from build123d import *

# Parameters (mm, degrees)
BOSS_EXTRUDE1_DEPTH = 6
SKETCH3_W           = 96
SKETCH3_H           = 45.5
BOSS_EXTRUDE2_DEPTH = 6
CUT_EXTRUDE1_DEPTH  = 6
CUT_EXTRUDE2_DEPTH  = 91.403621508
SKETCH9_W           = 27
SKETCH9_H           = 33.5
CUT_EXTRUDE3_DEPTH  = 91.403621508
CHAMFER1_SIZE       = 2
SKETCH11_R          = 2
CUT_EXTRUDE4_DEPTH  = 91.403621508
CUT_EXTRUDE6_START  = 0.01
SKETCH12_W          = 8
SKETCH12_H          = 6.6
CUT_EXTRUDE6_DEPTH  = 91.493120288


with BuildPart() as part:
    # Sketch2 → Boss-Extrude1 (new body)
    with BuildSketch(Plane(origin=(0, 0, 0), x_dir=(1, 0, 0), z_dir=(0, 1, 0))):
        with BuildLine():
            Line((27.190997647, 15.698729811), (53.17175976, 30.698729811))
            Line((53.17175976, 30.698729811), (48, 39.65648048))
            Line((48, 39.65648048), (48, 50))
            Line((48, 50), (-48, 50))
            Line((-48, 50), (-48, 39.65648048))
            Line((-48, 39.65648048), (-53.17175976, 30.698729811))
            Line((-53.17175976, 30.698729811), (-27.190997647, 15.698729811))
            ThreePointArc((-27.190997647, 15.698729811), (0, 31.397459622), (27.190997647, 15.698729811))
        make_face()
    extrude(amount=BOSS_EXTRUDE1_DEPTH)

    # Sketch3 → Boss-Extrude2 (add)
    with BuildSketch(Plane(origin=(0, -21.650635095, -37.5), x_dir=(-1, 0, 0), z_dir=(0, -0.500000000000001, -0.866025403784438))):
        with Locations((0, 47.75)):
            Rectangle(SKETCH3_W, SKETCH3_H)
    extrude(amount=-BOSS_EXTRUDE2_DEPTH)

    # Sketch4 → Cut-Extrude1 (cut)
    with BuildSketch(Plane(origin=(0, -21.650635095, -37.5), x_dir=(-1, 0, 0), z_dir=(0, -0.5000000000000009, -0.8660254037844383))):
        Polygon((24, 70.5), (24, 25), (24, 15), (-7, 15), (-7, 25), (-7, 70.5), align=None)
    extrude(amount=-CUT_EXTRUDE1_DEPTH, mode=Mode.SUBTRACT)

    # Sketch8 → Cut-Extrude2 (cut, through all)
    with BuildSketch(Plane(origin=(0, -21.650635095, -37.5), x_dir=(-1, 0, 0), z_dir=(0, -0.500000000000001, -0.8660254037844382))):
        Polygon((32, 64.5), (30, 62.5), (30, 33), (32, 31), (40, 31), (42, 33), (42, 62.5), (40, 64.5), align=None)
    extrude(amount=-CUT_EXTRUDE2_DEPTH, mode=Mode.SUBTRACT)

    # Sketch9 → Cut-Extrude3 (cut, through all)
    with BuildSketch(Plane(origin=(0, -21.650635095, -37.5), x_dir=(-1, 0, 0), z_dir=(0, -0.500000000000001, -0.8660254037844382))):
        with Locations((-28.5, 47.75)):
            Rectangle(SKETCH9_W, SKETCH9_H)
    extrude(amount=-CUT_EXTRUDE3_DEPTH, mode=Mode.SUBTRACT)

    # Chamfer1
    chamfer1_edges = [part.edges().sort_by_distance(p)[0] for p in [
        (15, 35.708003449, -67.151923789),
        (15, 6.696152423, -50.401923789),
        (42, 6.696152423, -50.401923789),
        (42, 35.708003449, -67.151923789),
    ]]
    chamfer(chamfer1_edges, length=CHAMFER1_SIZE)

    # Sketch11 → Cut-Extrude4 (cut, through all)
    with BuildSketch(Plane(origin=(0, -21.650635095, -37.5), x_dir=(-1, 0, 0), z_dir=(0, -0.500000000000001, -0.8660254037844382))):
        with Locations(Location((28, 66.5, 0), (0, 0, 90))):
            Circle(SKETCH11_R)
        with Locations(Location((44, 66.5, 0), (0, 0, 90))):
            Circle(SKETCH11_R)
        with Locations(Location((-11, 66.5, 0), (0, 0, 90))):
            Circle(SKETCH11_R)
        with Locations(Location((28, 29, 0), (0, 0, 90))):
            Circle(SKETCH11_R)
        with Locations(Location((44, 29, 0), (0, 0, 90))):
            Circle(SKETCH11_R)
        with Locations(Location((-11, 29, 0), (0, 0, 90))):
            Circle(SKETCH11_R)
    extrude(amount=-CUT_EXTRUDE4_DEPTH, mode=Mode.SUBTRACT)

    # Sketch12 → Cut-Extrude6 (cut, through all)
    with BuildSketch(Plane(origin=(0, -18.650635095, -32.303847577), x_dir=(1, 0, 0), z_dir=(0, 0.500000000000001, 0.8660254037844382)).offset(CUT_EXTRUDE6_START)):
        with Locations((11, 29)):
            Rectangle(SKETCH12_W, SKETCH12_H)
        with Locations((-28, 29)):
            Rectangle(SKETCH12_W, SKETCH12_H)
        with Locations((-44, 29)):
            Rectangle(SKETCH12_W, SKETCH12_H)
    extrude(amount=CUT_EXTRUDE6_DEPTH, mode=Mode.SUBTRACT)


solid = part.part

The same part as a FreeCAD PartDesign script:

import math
import FreeCAD as App
import Part
import Sketcher
from FreeCAD import Vector
Q = App.Units.Quantity


def edges_at(feature, points):
    """Names of the edges that pass closest to the given points."""
    edges = feature.Shape.Edges
    near = lambda p: min(range(len(edges)), key=lambda i: edges[i].distToShape(Part.Vertex(*p))[0])
    return sorted({f"Edge{near(p) + 1}" for p in points})

doc = App.newDocument("Part")
body = doc.addObject("PartDesign::Body", "Body")

# Sketch on XZ plane
sketch1 = doc.addObject("Sketcher::SketchObject", "Sketch")
body.addObject(sketch1)
sketch1.AttachmentSupport = (doc.XZ_Plane, [""])
sketch1.MapMode = "FlatFace"
sketch1.addGeometry(Part.LineSegment(Vector(27, -16, 0), Vector(53, -31, 0)), False)
sketch1.addGeometry(Part.LineSegment(Vector(53, -31, 0), Vector(48, -40, 0)), False)
sketch1.addGeometry(Part.LineSegment(Vector(48, -40, 0), Vector(48, -50, 0)), False)
sketch1.addGeometry(Part.LineSegment(Vector(48, -50, 0), Vector(-48, -50, 0)), False)
sketch1.addGeometry(Part.LineSegment(Vector(-48, -50, 0), Vector(-48, -40, 0)), False)
sketch1.addGeometry(Part.LineSegment(Vector(-48, -40, 0), Vector(-53, -31, 0)), False)
sketch1.addGeometry(Part.LineSegment(Vector(-53, -31, 0), Vector(-27, -16, 0)), False)
sketch1.addGeometry(Part.ArcOfCircle(Part.Circle(Vector(0, 0, 0), Vector(0, 0, 1), 31), math.radians(-150), math.radians(-30)), False)
sketch1.addConstraint(Sketcher.Constraint("Coincident", 0, 2, 1, 1))
sketch1.addConstraint(Sketcher.Constraint("Coincident", 1, 2, 2, 1))
sketch1.addConstraint(Sketcher.Constraint("Coincident", 2, 2, 3, 1))
sketch1.addConstraint(Sketcher.Constraint("Coincident", 3, 2, 4, 1))
sketch1.addConstraint(Sketcher.Constraint("Coincident", 4, 2, 5, 1))
sketch1.addConstraint(Sketcher.Constraint("Coincident", 5, 2, 6, 1))
sketch1.addConstraint(Sketcher.Constraint("Coincident", 6, 2, 7, 1))
sketch1.addConstraint(Sketcher.Constraint("Coincident", 7, 2, 0, 1))
sketch1.addConstraint(Sketcher.Constraint("Vertical", 2))
sketch1.addConstraint(Sketcher.Constraint("Horizontal", 3))
sketch1.addConstraint(Sketcher.Constraint("Vertical", 4))
sketch1.addConstraint(Sketcher.Constraint("Coincident", 7, 3, -1, 1))
sketch1.addConstraint(Sketcher.Constraint("Symmetric", 1, 2, 4, 2, -2))
sketch1.addConstraint(Sketcher.Constraint("Symmetric", 0, 2, 5, 2, -2))
sketch1.addConstraint(Sketcher.Constraint("Perpendicular", 0, 1))
sketch1.addConstraint(Sketcher.Constraint("Perpendicular", 5, 6))
sketch1.addConstraint(Sketcher.Constraint("DistanceX", 3, 2, 3, 1, 96.0))
sketch1.addConstraint(Sketcher.Constraint("Angle", 0, Q("-30 deg")))
sketch1.addConstraint(Sketcher.Constraint("Distance", 0, 30.0))
sketch1.addConstraint(Sketcher.Constraint("DistanceY", 2, 2, -1, 1, 50.0))
sketch1.addConstraint(Sketcher.Constraint("Radius", 7, 31.39746))
sketch1.addConstraint(Sketcher.Constraint("Distance", 1, 10.34352))
pad1 = doc.addObject("PartDesign::Pad", "Pad")
body.addObject(pad1)
pad1.Profile = sketch1
pad1.Length = 6
pad1.Reversed = True

# Sketch on an angled plane
sketch2 = doc.addObject("Sketcher::SketchObject", "Sketch001")
body.addObject(sketch2)
sketch2.Placement = App.Placement(Vector(0, -21.650635, -37.5), App.Rotation(Vector(-1, 0, 0), Vector(0, 0.866025404, -0.5), Vector(0, -0.5, -0.866025404), "ZXY"))
sketch2.addGeometry(Part.LineSegment(Vector(-48, 71, 0), Vector(-48, 25, 0)), False)
sketch2.addGeometry(Part.LineSegment(Vector(-48, 25, 0), Vector(48, 25, 0)), False)
sketch2.addGeometry(Part.LineSegment(Vector(48, 25, 0), Vector(48, 71, 0)), False)
sketch2.addGeometry(Part.LineSegment(Vector(48, 71, 0), Vector(-48, 71, 0)), False)
sketch2.addConstraint(Sketcher.Constraint("Coincident", 0, 2, 1, 1))
sketch2.addConstraint(Sketcher.Constraint("Coincident", 1, 2, 2, 1))
sketch2.addConstraint(Sketcher.Constraint("Coincident", 2, 2, 3, 1))
sketch2.addConstraint(Sketcher.Constraint("Coincident", 3, 2, 0, 1))
sketch2.addConstraint(Sketcher.Constraint("Vertical", 0))
sketch2.addConstraint(Sketcher.Constraint("Horizontal", 1))
sketch2.addConstraint(Sketcher.Constraint("Vertical", 2))
sketch2.addConstraint(Sketcher.Constraint("Horizontal", 3))
sketch2.addConstraint(Sketcher.Constraint("DistanceX", 1, 1, 1, 2, 96.0))
sketch2.addConstraint(Sketcher.Constraint("DistanceY", 0, 2, 0, 1, 45.5))
sketch2.addConstraint(Sketcher.Constraint("DistanceX", 0, 2, -1, 1, 48.0))
sketch2.addConstraint(Sketcher.Constraint("DistanceY", -1, 1, 0, 2, 25.0))
pad2 = doc.addObject("PartDesign::Pad", "Pad001")
body.addObject(pad2)
pad2.Profile = sketch2
pad2.Length = 6
pad2.Reversed = True

# Sketch on an angled plane
sketch3 = doc.addObject("Sketcher::SketchObject", "Sketch002")
body.addObject(sketch3)
sketch3.Placement = App.Placement(Vector(0, -21.650635, -37.5), App.Rotation(Vector(-1, 0, 0), Vector(0, 0.866025404, -0.5), Vector(0, -0.5, -0.866025404), "ZXY"))
sketch3.addGeometry(Part.LineSegment(Vector(24, 15, 0), Vector(24, 71, 0)), False)
sketch3.addGeometry(Part.LineSegment(Vector(24, 71, 0), Vector(-7, 71, 0)), False)
sketch3.addGeometry(Part.LineSegment(Vector(-7, 71, 0), Vector(-7, 15, 0)), False)
sketch3.addGeometry(Part.LineSegment(Vector(-7, 15, 0), Vector(24, 15, 0)), False)
sketch3.addConstraint(Sketcher.Constraint("Coincident", 0, 2, 1, 1))
sketch3.addConstraint(Sketcher.Constraint("Coincident", 1, 2, 2, 1))
sketch3.addConstraint(Sketcher.Constraint("Coincident", 2, 2, 3, 1))
sketch3.addConstraint(Sketcher.Constraint("Coincident", 3, 2, 0, 1))
sketch3.addConstraint(Sketcher.Constraint("Vertical", 0))
sketch3.addConstraint(Sketcher.Constraint("Horizontal", 1))
sketch3.addConstraint(Sketcher.Constraint("Vertical", 2))
sketch3.addConstraint(Sketcher.Constraint("Horizontal", 3))
sketch3.addConstraint(Sketcher.Constraint("DistanceX", 1, 2, 1, 1, 31.0))
sketch3.addConstraint(Sketcher.Constraint("DistanceY", 0, 1, 0, 2, 55.5))
sketch3.addConstraint(Sketcher.Constraint("DistanceX", -1, 1, 0, 2, 24.0))
sketch3.addConstraint(Sketcher.Constraint("DistanceY", -1, 1, 2, 2, 15.0))
pocket1 = doc.addObject("PartDesign::Pocket", "Pocket")
body.addObject(pocket1)
pocket1.Profile = sketch3
pocket1.Length = 6

# Sketch on an angled plane
sketch4 = doc.addObject("Sketcher::SketchObject", "Sketch003")
body.addObject(sketch4)
sketch4.Placement = App.Placement(Vector(0, -21.650635, -37.5), App.Rotation(Vector(-1, 0, 0), Vector(0, 0.866025404, -0.5), Vector(0, -0.5, -0.866025404), "ZXY"))
sketch4.addGeometry(Part.LineSegment(Vector(32, 64.5, 0), Vector(30, 62.5, 0)), False)
sketch4.addGeometry(Part.LineSegment(Vector(30, 62.5, 0), Vector(30, 33, 0)), False)
sketch4.addGeometry(Part.LineSegment(Vector(30, 33, 0), Vector(32, 31, 0)), False)
sketch4.addGeometry(Part.LineSegment(Vector(32, 31, 0), Vector(40, 31, 0)), False)
sketch4.addGeometry(Part.LineSegment(Vector(40, 31, 0), Vector(42, 33, 0)), False)
sketch4.addGeometry(Part.LineSegment(Vector(42, 33, 0), Vector(42, 62.5, 0)), False)
sketch4.addGeometry(Part.LineSegment(Vector(42, 62.5, 0), Vector(40, 64.5, 0)), False)
sketch4.addGeometry(Part.LineSegment(Vector(40, 64.5, 0), Vector(32, 64.5, 0)), False)
sketch4.addConstraint(Sketcher.Constraint("Coincident", 0, 2, 1, 1))
sketch4.addConstraint(Sketcher.Constraint("Coincident", 1, 2, 2, 1))
sketch4.addConstraint(Sketcher.Constraint("Coincident", 2, 2, 3, 1))
sketch4.addConstraint(Sketcher.Constraint("Coincident", 3, 2, 4, 1))
sketch4.addConstraint(Sketcher.Constraint("Coincident", 4, 2, 5, 1))
sketch4.addConstraint(Sketcher.Constraint("Coincident", 5, 2, 6, 1))
sketch4.addConstraint(Sketcher.Constraint("Coincident", 6, 2, 7, 1))
sketch4.addConstraint(Sketcher.Constraint("Coincident", 7, 2, 0, 1))
sketch4.addConstraint(Sketcher.Constraint("Vertical", 1))
sketch4.addConstraint(Sketcher.Constraint("Horizontal", 3))
sketch4.addConstraint(Sketcher.Constraint("Vertical", 5))
sketch4.addConstraint(Sketcher.Constraint("Horizontal", 7))
sketch4.addConstraint(Sketcher.Constraint("Perpendicular", 0, 2))
sketch4.addConstraint(Sketcher.Constraint("Perpendicular", 2, 4))
sketch4.addConstraint(Sketcher.Constraint("Perpendicular", 4, 6))
sketch4.addConstraint(Sketcher.Constraint("Horizontal", 1, 2, 4, 2))
sketch4.addConstraint(Sketcher.Constraint("Horizontal", 0, 2, 5, 2))
sketch4.addConstraint(Sketcher.Constraint("Vertical", 3, 2, 6, 2))
sketch4.addConstraint(Sketcher.Constraint("Vertical", 2, 2, 7, 2))
sketch4.addConstraint(Sketcher.Constraint("DistanceX", 3, 1, 3, 2, 8.0))
sketch4.addConstraint(Sketcher.Constraint("DistanceY", 1, 2, 1, 1, 29.5))
sketch4.addConstraint(Sketcher.Constraint("DistanceX", -1, 1, 0, 2, 30.0))
sketch4.addConstraint(Sketcher.Constraint("DistanceY", -1, 1, 1, 2, 33.0))
sketch4.addConstraint(Sketcher.Constraint("DistanceX", -1, 1, 2, 2, 32.0))
pocket2 = doc.addObject("PartDesign::Pocket", "Pocket001")
body.addObject(pocket2)
pocket2.Profile = sketch4
pocket2.Type = "ThroughAll"

# Sketch on an angled plane
sketch5 = doc.addObject("Sketcher::SketchObject", "Sketch004")
body.addObject(sketch5)
sketch5.Placement = App.Placement(Vector(0, -21.650635, -37.5), App.Rotation(Vector(-1, 0, 0), Vector(0, 0.866025404, -0.5), Vector(0, -0.5, -0.866025404), "ZXY"))
sketch5.addGeometry(Part.LineSegment(Vector(-42, 65, 0), Vector(-42, 31, 0)), False)
sketch5.addGeometry(Part.LineSegment(Vector(-42, 31, 0), Vector(-15, 31, 0)), False)
sketch5.addGeometry(Part.LineSegment(Vector(-15, 31, 0), Vector(-15, 65, 0)), False)
sketch5.addGeometry(Part.LineSegment(Vector(-15, 65, 0), Vector(-42, 65, 0)), False)
sketch5.addConstraint(Sketcher.Constraint("Coincident", 0, 2, 1, 1))
sketch5.addConstraint(Sketcher.Constraint("Coincident", 1, 2, 2, 1))
sketch5.addConstraint(Sketcher.Constraint("Coincident", 2, 2, 3, 1))
sketch5.addConstraint(Sketcher.Constraint("Coincident", 3, 2, 0, 1))
sketch5.addConstraint(Sketcher.Constraint("Vertical", 0))
sketch5.addConstraint(Sketcher.Constraint("Horizontal", 1))
sketch5.addConstraint(Sketcher.Constraint("Vertical", 2))
sketch5.addConstraint(Sketcher.Constraint("Horizontal", 3))
sketch5.addConstraint(Sketcher.Constraint("DistanceX", 1, 1, 1, 2, 27.0))
sketch5.addConstraint(Sketcher.Constraint("DistanceY", 0, 2, 0, 1, 33.5))
sketch5.addConstraint(Sketcher.Constraint("DistanceX", 0, 2, -1, 1, 42.0))
sketch5.addConstraint(Sketcher.Constraint("DistanceY", -1, 1, 0, 2, 31.0))
pocket3 = doc.addObject("PartDesign::Pocket", "Pocket002")
body.addObject(pocket3)
pocket3.Profile = sketch5
pocket3.Type = "ThroughAll"
doc.recompute()

chamfer = doc.addObject("PartDesign::Chamfer", "Chamfer")
body.addObject(chamfer)
chamfer.Base = (pocket3, edges_at(pocket3, [
    (15, 35.708, -67.152),
    (15, 6.696, -50.402),
    (42, 6.696, -50.402),
    (42, 35.708, -67.152),
]))
chamfer.Size = 2

# Sketch on an angled plane
sketch6 = doc.addObject("Sketcher::SketchObject", "Sketch005")
body.addObject(sketch6)
sketch6.Placement = App.Placement(Vector(0, -21.650635, -37.5), App.Rotation(Vector(-1, 0, 0), Vector(0, 0.866025404, -0.5), Vector(0, -0.5, -0.866025404), "ZXY"))
sketch6.addGeometry(Part.Circle(Vector(28, 66.5, 0), Vector(0, 0, 1), 2), False)
sketch6.addGeometry(Part.Circle(Vector(44, 66.5, 0), Vector(0, 0, 1), 2), False)
sketch6.addGeometry(Part.Circle(Vector(-11, 66.5, 0), Vector(0, 0, 1), 2), False)
sketch6.addGeometry(Part.Circle(Vector(28, 29, 0), Vector(0, 0, 1), 2), False)
sketch6.addGeometry(Part.Circle(Vector(44, 29, 0), Vector(0, 0, 1), 2), False)
sketch6.addGeometry(Part.Circle(Vector(-11, 29, 0), Vector(0, 0, 1), 2), False)
sketch6.addConstraint(Sketcher.Constraint("Equal", 0, 1))
sketch6.addConstraint(Sketcher.Constraint("Equal", 1, 2))
sketch6.addConstraint(Sketcher.Constraint("Equal", 2, 3))
sketch6.addConstraint(Sketcher.Constraint("Equal", 3, 4))
sketch6.addConstraint(Sketcher.Constraint("Equal", 4, 5))
sketch6.addConstraint(Sketcher.Constraint("Horizontal", 0, 3, 1, 3))
sketch6.addConstraint(Sketcher.Constraint("Horizontal", 1, 3, 2, 3))
sketch6.addConstraint(Sketcher.Constraint("Horizontal", 3, 3, 4, 3))
sketch6.addConstraint(Sketcher.Constraint("Horizontal", 4, 3, 5, 3))
sketch6.addConstraint(Sketcher.Constraint("Vertical", 0, 3, 3, 3))
sketch6.addConstraint(Sketcher.Constraint("Vertical", 1, 3, 4, 3))
sketch6.addConstraint(Sketcher.Constraint("Vertical", 2, 3, 5, 3))
sketch6.addConstraint(Sketcher.Constraint("Diameter", 0, 4.0))
sketch6.addConstraint(Sketcher.Constraint("DistanceX", -1, 1, 0, 3, 28.0))
sketch6.addConstraint(Sketcher.Constraint("DistanceX", -1, 1, 1, 3, 44.0))
sketch6.addConstraint(Sketcher.Constraint("DistanceX", 2, 3, -1, 1, 11.0))
sketch6.addConstraint(Sketcher.Constraint("DistanceY", -1, 1, 3, 3, 29.0))
sketch6.addConstraint(Sketcher.Constraint("DistanceY", -1, 1, 0, 3, 66.5))
pocket4 = doc.addObject("PartDesign::Pocket", "Pocket003")
body.addObject(pocket4)
pocket4.Profile = sketch6
pocket4.Type = "ThroughAll"

# Sketch on an angled plane
sketch7 = doc.addObject("Sketcher::SketchObject", "Sketch006")
body.addObject(sketch7)
sketch7.Placement = App.Placement(Vector(0, -18.645635, -32.295187), App.Rotation(Vector(1, 0, 0), Vector(0, 0.866025404, -0.5), Vector(0, 0.5, 0.866025404), "ZXY"))
sketch7.addGeometry(Part.LineSegment(Vector(7, 32, 0), Vector(7, 26, 0)), False)
sketch7.addGeometry(Part.LineSegment(Vector(7, 26, 0), Vector(15, 26, 0)), False)
sketch7.addGeometry(Part.LineSegment(Vector(15, 26, 0), Vector(15, 32, 0)), False)
sketch7.addGeometry(Part.LineSegment(Vector(15, 32, 0), Vector(7, 32, 0)), False)
sketch7.addGeometry(Part.LineSegment(Vector(-32, 32, 0), Vector(-32, 26, 0)), False)
sketch7.addGeometry(Part.LineSegment(Vector(-32, 26, 0), Vector(-24, 26, 0)), False)
sketch7.addGeometry(Part.LineSegment(Vector(-24, 26, 0), Vector(-24, 32, 0)), False)
sketch7.addGeometry(Part.LineSegment(Vector(-24, 32, 0), Vector(-32, 32, 0)), False)
sketch7.addGeometry(Part.LineSegment(Vector(-48, 32, 0), Vector(-48, 26, 0)), False)
sketch7.addGeometry(Part.LineSegment(Vector(-48, 26, 0), Vector(-40, 26, 0)), False)
sketch7.addGeometry(Part.LineSegment(Vector(-40, 26, 0), Vector(-40, 32, 0)), False)
sketch7.addGeometry(Part.LineSegment(Vector(-40, 32, 0), Vector(-48, 32, 0)), False)
sketch7.addConstraint(Sketcher.Constraint("Coincident", 0, 2, 1, 1))
sketch7.addConstraint(Sketcher.Constraint("Coincident", 1, 2, 2, 1))
sketch7.addConstraint(Sketcher.Constraint("Coincident", 2, 2, 3, 1))
sketch7.addConstraint(Sketcher.Constraint("Coincident", 3, 2, 0, 1))
sketch7.addConstraint(Sketcher.Constraint("Coincident", 4, 2, 5, 1))
sketch7.addConstraint(Sketcher.Constraint("Coincident", 5, 2, 6, 1))
sketch7.addConstraint(Sketcher.Constraint("Coincident", 6, 2, 7, 1))
sketch7.addConstraint(Sketcher.Constraint("Coincident", 7, 2, 4, 1))
sketch7.addConstraint(Sketcher.Constraint("Coincident", 8, 2, 9, 1))
sketch7.addConstraint(Sketcher.Constraint("Coincident", 9, 2, 10, 1))
sketch7.addConstraint(Sketcher.Constraint("Coincident", 10, 2, 11, 1))
sketch7.addConstraint(Sketcher.Constraint("Coincident", 11, 2, 8, 1))
sketch7.addConstraint(Sketcher.Constraint("Vertical", 0))
sketch7.addConstraint(Sketcher.Constraint("Horizontal", 1))
sketch7.addConstraint(Sketcher.Constraint("Vertical", 2))
sketch7.addConstraint(Sketcher.Constraint("Horizontal", 3))
sketch7.addConstraint(Sketcher.Constraint("Vertical", 4))
sketch7.addConstraint(Sketcher.Constraint("Horizontal", 5))
sketch7.addConstraint(Sketcher.Constraint("Vertical", 6))
sketch7.addConstraint(Sketcher.Constraint("Horizontal", 7))
sketch7.addConstraint(Sketcher.Constraint("Vertical", 8))
sketch7.addConstraint(Sketcher.Constraint("Horizontal", 9))
sketch7.addConstraint(Sketcher.Constraint("Vertical", 10))
sketch7.addConstraint(Sketcher.Constraint("Horizontal", 11))
sketch7.addConstraint(Sketcher.Constraint("Horizontal", 1, 2, 4, 2))
sketch7.addConstraint(Sketcher.Constraint("Horizontal", 3, 2, 6, 2))
sketch7.addConstraint(Sketcher.Constraint("Horizontal", 5, 2, 8, 2))
sketch7.addConstraint(Sketcher.Constraint("Horizontal", 7, 2, 10, 2))
sketch7.addConstraint(Sketcher.Constraint("Equal", 3, 5))
sketch7.addConstraint(Sketcher.Constraint("Equal", 7, 9))
sketch7.addConstraint(Sketcher.Constraint("DistanceX", 1, 1, 1, 2, 8.0))
sketch7.addConstraint(Sketcher.Constraint("DistanceY", 0, 2, 0, 1, 6.6))
sketch7.addConstraint(Sketcher.Constraint("DistanceX", -1, 1, 0, 2, 7.0))
sketch7.addConstraint(Sketcher.Constraint("DistanceX", 4, 2, -1, 1, 32.0))
sketch7.addConstraint(Sketcher.Constraint("DistanceX", 8, 2, -1, 1, 48.0))
sketch7.addConstraint(Sketcher.Constraint("DistanceY", -1, 1, 0, 2, 25.7))
pocket5 = doc.addObject("PartDesign::Pocket", "Pocket004")
body.addObject(pocket5)
pocket5.Profile = sketch7
pocket5.Type = "ThroughAll"
pocket5.Reversed = True

doc.recompute()
